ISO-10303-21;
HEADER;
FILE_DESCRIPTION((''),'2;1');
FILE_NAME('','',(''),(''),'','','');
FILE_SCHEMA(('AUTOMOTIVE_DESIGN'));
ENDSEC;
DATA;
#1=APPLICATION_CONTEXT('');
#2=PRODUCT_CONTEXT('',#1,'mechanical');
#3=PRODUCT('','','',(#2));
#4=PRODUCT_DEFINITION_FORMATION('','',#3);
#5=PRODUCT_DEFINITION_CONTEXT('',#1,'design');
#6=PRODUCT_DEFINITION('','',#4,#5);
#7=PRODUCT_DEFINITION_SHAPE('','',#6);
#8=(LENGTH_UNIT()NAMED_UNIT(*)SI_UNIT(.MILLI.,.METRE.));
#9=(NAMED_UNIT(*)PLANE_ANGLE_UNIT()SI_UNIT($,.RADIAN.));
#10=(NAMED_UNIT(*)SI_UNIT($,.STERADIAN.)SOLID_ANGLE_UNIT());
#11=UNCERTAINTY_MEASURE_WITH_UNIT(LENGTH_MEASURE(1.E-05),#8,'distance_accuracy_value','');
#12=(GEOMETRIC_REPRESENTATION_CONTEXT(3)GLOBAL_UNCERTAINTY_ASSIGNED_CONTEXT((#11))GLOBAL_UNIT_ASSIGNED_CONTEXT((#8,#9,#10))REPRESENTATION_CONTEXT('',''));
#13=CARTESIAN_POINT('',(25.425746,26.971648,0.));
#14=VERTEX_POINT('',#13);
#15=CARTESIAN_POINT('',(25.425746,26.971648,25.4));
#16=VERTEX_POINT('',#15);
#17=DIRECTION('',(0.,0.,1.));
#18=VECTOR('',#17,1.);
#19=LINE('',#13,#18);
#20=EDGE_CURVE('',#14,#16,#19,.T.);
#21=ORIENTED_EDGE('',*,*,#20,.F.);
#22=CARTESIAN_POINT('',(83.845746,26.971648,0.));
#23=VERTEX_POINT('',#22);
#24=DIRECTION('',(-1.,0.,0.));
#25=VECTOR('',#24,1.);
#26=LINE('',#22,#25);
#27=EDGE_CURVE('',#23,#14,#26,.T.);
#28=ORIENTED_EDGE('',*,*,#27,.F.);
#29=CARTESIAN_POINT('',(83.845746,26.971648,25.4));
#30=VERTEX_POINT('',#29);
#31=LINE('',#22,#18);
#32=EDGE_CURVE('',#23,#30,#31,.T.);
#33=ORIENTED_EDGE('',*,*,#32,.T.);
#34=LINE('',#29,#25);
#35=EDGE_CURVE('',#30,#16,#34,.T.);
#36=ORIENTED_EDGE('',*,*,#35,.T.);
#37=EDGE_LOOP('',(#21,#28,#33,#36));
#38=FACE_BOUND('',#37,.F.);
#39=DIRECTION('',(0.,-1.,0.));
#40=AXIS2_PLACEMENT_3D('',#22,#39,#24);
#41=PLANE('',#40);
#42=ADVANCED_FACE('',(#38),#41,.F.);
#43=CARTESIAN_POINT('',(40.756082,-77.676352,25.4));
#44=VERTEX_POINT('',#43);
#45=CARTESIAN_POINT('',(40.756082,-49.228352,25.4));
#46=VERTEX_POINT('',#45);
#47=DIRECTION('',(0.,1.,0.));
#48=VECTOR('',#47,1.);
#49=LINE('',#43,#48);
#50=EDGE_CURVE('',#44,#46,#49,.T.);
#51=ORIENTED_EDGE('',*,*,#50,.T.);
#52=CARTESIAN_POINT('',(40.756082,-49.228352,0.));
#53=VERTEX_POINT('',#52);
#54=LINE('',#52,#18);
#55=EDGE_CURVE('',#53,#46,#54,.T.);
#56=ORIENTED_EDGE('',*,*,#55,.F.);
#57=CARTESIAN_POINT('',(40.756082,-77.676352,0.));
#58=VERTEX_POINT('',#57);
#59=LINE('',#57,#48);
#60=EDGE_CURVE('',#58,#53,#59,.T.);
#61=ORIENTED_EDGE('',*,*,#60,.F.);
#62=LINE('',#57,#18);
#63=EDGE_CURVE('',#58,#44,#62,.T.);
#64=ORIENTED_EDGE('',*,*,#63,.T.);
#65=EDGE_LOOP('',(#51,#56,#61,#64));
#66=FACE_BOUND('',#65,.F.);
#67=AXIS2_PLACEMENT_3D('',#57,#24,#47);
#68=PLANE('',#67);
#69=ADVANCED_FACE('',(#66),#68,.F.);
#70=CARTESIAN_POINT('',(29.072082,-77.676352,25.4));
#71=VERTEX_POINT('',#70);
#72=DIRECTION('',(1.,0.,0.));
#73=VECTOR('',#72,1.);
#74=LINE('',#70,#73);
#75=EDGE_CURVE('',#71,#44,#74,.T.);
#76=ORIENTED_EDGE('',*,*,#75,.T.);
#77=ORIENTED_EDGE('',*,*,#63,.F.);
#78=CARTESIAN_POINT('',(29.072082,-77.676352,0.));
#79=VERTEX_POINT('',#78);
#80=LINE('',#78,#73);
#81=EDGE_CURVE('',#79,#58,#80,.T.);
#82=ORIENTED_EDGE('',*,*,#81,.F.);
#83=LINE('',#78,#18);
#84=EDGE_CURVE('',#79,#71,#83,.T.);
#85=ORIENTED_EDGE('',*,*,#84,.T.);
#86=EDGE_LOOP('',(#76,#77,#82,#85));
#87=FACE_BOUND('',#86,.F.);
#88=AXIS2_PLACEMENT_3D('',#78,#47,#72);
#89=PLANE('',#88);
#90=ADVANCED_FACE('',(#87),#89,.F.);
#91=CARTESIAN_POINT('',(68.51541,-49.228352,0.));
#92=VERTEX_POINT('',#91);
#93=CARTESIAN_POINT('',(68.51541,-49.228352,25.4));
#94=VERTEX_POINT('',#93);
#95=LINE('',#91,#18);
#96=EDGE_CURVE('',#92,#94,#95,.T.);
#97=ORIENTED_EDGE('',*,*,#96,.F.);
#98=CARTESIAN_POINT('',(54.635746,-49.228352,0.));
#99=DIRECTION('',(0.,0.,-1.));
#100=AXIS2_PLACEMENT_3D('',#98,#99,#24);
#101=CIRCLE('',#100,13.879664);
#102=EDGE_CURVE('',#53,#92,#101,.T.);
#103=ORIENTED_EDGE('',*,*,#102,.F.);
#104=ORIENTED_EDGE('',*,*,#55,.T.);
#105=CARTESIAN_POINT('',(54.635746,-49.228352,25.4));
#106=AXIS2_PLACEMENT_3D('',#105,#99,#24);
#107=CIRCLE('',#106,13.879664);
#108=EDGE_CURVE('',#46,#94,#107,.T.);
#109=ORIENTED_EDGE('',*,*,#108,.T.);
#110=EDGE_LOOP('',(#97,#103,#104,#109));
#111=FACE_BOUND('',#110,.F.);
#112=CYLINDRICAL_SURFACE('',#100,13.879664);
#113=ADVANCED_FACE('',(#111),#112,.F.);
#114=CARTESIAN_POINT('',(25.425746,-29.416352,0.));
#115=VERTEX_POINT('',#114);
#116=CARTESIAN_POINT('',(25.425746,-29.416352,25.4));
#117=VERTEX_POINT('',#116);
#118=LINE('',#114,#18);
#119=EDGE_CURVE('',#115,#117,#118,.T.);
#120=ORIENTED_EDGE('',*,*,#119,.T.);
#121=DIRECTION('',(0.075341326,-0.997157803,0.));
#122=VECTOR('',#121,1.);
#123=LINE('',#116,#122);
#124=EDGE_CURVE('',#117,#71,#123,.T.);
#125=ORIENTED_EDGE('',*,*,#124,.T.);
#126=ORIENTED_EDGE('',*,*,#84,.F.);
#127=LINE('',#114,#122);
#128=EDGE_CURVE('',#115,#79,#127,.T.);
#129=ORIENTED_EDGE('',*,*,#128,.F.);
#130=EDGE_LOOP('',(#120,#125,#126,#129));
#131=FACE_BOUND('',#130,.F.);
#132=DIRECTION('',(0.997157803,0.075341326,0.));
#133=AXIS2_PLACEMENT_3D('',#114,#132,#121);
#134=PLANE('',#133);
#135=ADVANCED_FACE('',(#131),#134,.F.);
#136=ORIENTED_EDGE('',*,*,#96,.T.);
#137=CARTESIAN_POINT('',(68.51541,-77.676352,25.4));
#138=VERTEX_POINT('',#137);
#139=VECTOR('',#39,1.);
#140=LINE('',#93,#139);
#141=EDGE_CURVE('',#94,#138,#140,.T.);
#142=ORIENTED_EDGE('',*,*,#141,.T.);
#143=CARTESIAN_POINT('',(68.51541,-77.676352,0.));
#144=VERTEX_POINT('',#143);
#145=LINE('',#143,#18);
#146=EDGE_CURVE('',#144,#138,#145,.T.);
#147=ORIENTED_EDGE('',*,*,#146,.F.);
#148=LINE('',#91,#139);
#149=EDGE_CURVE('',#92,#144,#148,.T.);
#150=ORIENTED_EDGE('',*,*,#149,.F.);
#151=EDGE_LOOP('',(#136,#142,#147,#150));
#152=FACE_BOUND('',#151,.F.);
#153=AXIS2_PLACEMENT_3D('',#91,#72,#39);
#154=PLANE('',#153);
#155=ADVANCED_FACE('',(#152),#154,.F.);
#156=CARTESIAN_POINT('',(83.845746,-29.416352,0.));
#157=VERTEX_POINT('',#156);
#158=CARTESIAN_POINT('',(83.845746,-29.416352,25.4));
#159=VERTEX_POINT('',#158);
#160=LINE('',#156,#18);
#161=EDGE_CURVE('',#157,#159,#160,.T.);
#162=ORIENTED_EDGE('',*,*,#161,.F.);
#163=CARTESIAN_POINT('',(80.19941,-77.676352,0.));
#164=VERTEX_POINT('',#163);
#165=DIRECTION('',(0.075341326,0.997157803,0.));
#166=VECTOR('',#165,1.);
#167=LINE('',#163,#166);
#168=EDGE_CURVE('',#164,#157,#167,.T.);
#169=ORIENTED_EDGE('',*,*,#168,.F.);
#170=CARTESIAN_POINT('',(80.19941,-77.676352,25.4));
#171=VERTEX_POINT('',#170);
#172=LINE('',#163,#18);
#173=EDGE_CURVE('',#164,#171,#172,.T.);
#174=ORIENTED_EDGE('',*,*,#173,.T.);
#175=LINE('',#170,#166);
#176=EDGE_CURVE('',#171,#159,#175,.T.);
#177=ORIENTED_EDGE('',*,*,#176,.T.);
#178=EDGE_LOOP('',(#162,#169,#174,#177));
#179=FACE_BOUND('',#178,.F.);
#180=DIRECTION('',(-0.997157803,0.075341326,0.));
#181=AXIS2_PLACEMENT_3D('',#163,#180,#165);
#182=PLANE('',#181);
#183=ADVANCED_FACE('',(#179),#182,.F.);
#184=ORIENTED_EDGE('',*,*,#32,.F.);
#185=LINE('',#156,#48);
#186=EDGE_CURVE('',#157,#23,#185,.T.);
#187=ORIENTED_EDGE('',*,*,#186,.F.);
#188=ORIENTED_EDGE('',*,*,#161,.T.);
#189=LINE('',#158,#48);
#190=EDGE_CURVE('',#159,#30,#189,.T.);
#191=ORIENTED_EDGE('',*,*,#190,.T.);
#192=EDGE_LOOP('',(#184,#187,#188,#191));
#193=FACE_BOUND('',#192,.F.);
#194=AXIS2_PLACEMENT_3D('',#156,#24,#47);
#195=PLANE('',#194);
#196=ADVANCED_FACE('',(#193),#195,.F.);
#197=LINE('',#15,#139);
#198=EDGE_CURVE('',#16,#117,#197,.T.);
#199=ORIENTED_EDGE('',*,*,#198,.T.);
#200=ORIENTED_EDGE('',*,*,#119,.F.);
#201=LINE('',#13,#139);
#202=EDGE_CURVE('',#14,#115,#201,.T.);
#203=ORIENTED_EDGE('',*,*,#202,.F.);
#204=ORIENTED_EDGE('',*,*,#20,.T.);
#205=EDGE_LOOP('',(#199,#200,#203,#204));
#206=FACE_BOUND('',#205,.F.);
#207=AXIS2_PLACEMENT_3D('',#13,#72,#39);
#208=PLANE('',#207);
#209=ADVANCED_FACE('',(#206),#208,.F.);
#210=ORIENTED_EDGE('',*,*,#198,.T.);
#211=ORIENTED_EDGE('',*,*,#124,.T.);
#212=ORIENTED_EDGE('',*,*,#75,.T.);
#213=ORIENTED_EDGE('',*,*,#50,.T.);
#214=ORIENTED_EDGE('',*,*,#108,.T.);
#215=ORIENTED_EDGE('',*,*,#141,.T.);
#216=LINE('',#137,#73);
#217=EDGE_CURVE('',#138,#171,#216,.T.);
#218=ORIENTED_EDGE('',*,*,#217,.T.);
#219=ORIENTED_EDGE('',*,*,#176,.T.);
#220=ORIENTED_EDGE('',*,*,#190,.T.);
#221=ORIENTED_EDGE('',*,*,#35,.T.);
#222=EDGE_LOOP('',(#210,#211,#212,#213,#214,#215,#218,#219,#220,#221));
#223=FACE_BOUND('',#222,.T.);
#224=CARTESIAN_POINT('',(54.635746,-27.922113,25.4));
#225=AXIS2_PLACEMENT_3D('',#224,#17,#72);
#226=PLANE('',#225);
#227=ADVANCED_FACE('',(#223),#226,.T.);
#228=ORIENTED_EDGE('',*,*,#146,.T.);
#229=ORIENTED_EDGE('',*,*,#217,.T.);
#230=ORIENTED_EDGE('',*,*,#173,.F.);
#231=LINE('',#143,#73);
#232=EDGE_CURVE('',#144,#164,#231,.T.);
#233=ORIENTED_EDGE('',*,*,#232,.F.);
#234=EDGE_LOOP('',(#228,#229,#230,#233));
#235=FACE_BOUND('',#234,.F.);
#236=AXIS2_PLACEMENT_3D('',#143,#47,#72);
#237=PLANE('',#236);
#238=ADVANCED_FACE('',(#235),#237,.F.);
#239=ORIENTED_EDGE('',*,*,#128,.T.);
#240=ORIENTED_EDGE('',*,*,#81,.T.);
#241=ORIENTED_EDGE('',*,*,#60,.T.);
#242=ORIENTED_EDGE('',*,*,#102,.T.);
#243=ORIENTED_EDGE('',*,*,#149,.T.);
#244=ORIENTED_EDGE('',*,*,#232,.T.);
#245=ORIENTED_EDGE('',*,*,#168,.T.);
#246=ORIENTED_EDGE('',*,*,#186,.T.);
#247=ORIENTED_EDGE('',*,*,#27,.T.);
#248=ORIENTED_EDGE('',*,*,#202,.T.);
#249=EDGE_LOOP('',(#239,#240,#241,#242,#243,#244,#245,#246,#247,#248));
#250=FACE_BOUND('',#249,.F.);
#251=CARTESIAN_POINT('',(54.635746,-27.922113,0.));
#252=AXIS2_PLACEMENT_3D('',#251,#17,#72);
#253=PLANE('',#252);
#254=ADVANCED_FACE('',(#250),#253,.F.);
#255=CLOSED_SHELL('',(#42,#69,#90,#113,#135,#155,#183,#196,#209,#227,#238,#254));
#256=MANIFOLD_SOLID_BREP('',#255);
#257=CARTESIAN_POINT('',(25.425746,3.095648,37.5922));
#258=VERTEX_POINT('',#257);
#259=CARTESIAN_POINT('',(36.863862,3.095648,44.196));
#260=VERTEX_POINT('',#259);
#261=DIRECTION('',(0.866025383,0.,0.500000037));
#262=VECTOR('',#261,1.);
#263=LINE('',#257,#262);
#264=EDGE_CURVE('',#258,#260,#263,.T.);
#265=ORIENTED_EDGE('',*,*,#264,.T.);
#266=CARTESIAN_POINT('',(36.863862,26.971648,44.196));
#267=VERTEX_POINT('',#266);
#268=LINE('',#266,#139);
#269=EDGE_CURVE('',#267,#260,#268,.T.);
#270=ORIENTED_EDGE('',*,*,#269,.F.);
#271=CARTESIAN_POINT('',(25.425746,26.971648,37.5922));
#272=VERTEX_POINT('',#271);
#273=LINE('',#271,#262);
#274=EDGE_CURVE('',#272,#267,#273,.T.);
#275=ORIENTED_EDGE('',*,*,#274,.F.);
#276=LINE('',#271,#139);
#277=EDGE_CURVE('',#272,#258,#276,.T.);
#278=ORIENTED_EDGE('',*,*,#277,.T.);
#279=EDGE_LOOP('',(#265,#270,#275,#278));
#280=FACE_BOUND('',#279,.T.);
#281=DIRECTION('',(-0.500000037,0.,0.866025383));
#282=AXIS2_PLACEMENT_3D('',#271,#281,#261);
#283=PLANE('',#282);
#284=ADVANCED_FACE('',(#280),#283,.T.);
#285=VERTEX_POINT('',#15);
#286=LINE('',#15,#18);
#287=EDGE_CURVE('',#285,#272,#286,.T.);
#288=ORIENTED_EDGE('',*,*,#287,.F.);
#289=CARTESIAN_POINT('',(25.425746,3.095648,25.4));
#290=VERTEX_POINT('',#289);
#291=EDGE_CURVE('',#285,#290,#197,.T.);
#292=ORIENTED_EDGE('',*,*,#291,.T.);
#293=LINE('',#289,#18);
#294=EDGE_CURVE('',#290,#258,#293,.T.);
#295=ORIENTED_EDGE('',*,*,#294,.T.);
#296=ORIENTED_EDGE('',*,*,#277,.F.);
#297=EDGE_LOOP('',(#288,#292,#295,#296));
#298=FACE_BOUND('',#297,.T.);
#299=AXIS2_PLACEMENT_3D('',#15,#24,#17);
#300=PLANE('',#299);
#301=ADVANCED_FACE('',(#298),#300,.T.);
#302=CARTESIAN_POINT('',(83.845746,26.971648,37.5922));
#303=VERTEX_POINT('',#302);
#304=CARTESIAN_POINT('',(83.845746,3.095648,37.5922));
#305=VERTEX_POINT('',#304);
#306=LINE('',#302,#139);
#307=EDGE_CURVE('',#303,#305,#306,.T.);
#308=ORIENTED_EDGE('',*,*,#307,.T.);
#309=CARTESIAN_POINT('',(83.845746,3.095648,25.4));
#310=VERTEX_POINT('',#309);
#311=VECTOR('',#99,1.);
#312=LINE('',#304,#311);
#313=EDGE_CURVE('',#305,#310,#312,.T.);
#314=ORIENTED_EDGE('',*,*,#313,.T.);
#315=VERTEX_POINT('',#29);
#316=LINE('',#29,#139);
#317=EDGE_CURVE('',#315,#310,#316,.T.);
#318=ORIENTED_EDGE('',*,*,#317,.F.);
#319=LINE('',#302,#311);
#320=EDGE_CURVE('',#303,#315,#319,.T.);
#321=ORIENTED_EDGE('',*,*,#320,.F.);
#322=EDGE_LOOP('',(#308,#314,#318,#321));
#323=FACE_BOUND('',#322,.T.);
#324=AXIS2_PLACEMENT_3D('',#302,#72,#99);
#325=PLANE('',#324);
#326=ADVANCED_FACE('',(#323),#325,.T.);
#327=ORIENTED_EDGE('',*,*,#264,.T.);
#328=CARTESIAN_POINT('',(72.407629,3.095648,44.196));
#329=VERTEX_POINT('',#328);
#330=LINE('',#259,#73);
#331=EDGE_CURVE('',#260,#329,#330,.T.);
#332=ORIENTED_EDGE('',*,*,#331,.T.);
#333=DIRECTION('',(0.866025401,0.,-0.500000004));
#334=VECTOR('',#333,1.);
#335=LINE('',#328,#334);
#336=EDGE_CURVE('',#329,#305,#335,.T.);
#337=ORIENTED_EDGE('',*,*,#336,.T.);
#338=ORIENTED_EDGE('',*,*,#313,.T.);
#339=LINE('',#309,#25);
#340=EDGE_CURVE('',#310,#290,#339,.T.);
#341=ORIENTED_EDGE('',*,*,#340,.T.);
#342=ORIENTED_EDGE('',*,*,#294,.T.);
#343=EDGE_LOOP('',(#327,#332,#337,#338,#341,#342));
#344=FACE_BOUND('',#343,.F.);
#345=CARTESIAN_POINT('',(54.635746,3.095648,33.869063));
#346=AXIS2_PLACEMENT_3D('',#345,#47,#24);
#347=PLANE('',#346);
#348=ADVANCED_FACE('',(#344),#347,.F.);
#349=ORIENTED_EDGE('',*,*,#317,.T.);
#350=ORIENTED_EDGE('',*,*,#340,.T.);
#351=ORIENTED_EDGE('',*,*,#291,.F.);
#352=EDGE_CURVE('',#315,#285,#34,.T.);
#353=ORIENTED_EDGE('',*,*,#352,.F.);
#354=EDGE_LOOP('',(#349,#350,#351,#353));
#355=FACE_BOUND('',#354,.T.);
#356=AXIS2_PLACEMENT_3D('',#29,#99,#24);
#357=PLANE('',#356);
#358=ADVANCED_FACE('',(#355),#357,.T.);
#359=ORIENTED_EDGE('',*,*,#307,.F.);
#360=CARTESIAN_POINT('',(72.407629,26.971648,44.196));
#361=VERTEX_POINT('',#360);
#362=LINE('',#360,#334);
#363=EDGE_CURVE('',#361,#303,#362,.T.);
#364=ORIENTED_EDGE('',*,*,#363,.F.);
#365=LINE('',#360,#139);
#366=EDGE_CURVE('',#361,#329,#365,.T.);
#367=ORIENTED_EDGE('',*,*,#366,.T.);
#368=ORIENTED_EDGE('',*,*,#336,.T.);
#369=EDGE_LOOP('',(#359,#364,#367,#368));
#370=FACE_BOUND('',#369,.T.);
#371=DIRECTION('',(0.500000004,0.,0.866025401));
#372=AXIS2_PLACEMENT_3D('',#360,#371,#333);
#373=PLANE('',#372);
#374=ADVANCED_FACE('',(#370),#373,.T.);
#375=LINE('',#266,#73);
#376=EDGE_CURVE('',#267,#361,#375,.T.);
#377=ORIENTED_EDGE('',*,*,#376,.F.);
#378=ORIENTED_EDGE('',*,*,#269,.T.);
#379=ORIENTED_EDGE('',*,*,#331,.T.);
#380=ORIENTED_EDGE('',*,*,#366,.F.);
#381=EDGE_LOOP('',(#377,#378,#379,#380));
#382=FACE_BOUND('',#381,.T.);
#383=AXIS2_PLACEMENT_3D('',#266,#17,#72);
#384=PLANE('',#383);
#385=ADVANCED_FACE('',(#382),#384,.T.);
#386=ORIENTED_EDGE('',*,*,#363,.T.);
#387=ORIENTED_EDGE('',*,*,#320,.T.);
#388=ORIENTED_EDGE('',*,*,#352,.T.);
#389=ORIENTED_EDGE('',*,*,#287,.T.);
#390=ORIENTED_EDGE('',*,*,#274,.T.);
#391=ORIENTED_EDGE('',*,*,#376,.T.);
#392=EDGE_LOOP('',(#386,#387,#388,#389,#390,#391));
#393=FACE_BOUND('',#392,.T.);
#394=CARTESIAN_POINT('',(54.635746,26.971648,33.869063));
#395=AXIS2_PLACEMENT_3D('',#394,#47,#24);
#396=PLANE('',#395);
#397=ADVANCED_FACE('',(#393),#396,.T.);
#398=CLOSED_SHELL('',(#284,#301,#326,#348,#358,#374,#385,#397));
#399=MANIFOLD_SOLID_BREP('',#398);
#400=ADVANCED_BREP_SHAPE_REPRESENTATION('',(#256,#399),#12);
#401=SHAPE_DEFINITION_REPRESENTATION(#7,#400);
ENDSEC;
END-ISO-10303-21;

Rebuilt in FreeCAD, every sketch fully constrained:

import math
import FreeCAD as App
import Part
import Sketcher
Q = App.Units.Quantity

doc = App.newDocument("Part")
body = doc.addObject("PartDesign::Body", "Body")

sketch1 = doc.addObject("Sketcher::SketchObject", "Sketch")
body.addObject(sketch1)
sketch1.AttachmentSupport = (doc.XY_Plane, [""])
sketch1.MapMode = "FlatFace"
sketch1.addGeometry(Part.LineSegment(App.Vector(83.845746, 26.971648, 0), App.Vector(25.425746, 26.971648, 0)), False)
sketch1.addGeometry(Part.LineSegment(App.Vector(25.425746, 26.971648, 0), App.Vector(25.425746, -29.416352, 0)), False)
sketch1.addGeometry(Part.LineSegment(App.Vector(25.425746, -29.416352, 0), App.Vector(29.072082, -77.676352, 0)), False)
sketch1.addGeometry(Part.LineSegment(App.Vector(29.072082, -77.676352, 0), App.Vector(40.756082, -77.676352, 0)), False)
sketch1.addGeometry(Part.LineSegment(App.Vector(40.756082, -77.676352, 0), App.Vector(40.756082, -49.228352, 0)), False)
sketch1.addGeometry(Part.ArcOfCircle(Part.Circle(App.Vector(54.635746, -49.228352, 0), App.Vector(0, 0, 1), 13.879664), math.radians(0), math.radians(180)), False)
sketch1.addGeometry(Part.LineSegment(App.Vector(68.51541, -49.228352, 0), App.Vector(68.51541, -77.676352, 0)), False)
sketch1.addGeometry(Part.LineSegment(App.Vector(68.51541, -77.676352, 0), App.Vector(80.19941, -77.676352, 0)), False)
sketch1.addGeometry(Part.LineSegment(App.Vector(80.19941, -77.676352, 0), App.Vector(83.845746, -29.416352, 0)), False)
sketch1.addGeometry(Part.LineSegment(App.Vector(83.845746, -29.416352, 0), App.Vector(83.845746, 26.971648, 0)), False)
sketch1.addConstraint(Sketcher.Constraint("Coincident", 0, 2, 1, 1))
sketch1.addConstraint(Sketcher.Constraint("Coincident", 1, 2, 2, 1))
sketch1.addConstraint(Sketcher.Constraint("Coincident", 2, 2, 3, 1))
sketch1.addConstraint(Sketcher.Constraint("Coincident", 3, 2, 4, 1))
sketch1.addConstraint(Sketcher.Constraint("Tangent", 4, 2, 5, 2))
sketch1.addConstraint(Sketcher.Constraint("Tangent", 5, 1, 6, 1))
sketch1.addConstraint(Sketcher.Constraint("Coincident", 6, 2, 7, 1))
sketch1.addConstraint(Sketcher.Constraint("Coincident", 7, 2, 8, 1))
sketch1.addConstraint(Sketcher.Constraint("Coincident", 8, 2, 9, 1))
sketch1.addConstraint(Sketcher.Constraint("Coincident", 9, 2, 0, 1))
sketch1.addConstraint(Sketcher.Constraint("Horizontal", 0))
sketch1.addConstraint(Sketcher.Constraint("Vertical", 1))
sketch1.addConstraint(Sketcher.Constraint("Horizontal", 3))
sketch1.addConstraint(Sketcher.Constraint("Vertical", 4))
sketch1.addConstraint(Sketcher.Constraint("Vertical", 6))
sketch1.addConstraint(Sketcher.Constraint("Horizontal", 7))
sketch1.addConstraint(Sketcher.Constraint("Vertical", 9))
sketch1.addConstraint(Sketcher.Constraint("Horizontal", 3, 2, 6, 2))
sketch1.addConstraint(Sketcher.Constraint("Horizontal", 1, 2, 8, 2))
sketch1.addConstraint(Sketcher.Constraint("Equal", 3, 7))
sketch1.addConstraint(Sketcher.Constraint("Equal", 2, 8))
sketch1.addConstraint(Sketcher.Constraint("DistanceX", 0, 2, 0, 1, Q("2.3 in")))
sketch1.addConstraint(Sketcher.Constraint("DistanceY", 5, 3, 0, 2, Q("3 in")))
sketch1.addConstraint(Sketcher.Constraint("DistanceX", 3, 1, 3, 2, Q("0.46 in")))
sketch1.addConstraint(Sketcher.Constraint("DistanceY", 1, 2, 1, 1, Q("2.22 in")))
sketch1.addConstraint(Sketcher.Constraint("DistanceY", 4, 1, 4, 2, Q("1.12 in")))
sketch1.addConstraint(Sketcher.Constraint("Radius", 5, Q("13.879664 mm")))
sketch1.addConstraint(Sketcher.Constraint("DistanceY", 1, 2, -1, 1, Q("29.416352 mm")))
sketch1.addConstraint(Sketcher.Constraint("DistanceX", -1, 1, 5, 1, Q("68.51541 mm")))
pad1 = doc.addObject("PartDesign::Pad", "Pad")
body.addObject(pad1)
pad1.Profile = sketch1
pad1.Length = Q("1 in")
body2 = doc.addObject("PartDesign::Body", "Body001")

sketch2 = doc.addObject("Sketcher::SketchObject", "Sketch001")
body2.addObject(sketch2)
sketch2.AttachmentSupport = (doc.getObject("XZ_Plane001"), [""])
sketch2.MapMode = "FlatFace"
sketch2.AttachmentOffset = App.Placement(App.Vector(0, 0, -26.971648), App.Rotation())
sketch2.addGeometry(Part.LineSegment(App.Vector(72.407629, 44.196, 0), App.Vector(83.845746, 37.5922, 0)), False)
sketch2.addGeometry(Part.LineSegment(App.Vector(83.845746, 37.5922, 0), App.Vector(83.845746, 25.4, 0)), False)
sketch2.addGeometry(Part.LineSegment(App.Vector(83.845746, 25.4, 0), App.Vector(25.425746, 25.4, 0)), False)
sketch2.addGeometry(Part.LineSegment(App.Vector(25.425746, 25.4, 0), App.Vector(25.425746, 37.5922, 0)), False)
sketch2.addGeometry(Part.LineSegment(App.Vector(25.425746, 37.5922, 0), App.Vector(36.863862, 44.196, 0)), False)
sketch2.addGeometry(Part.LineSegment(App.Vector(36.863862, 44.196, 0), App.Vector(72.407629, 44.196, 0)), False)
sketch2.addConstraint(Sketcher.Constraint("Coincident", 0, 2, 1, 1))
sketch2.addConstraint(Sketcher.Constraint("Coincident", 1, 2, 2, 1))
sketch2.addConstraint(Sketcher.Constraint("Coincident", 2, 2, 3, 1))
sketch2.addConstraint(Sketcher.Constraint("Coincident", 3, 2, 4, 1))
sketch2.addConstraint(Sketcher.Constraint("Coincident", 4, 2, 5, 1))
sketch2.addConstraint(Sketcher.Constraint("Coincident", 5, 2, 0, 1))
sketch2.addConstraint(Sketcher.Constraint("Vertical", 1))
sketch2.addConstraint(Sketcher.Constraint("Horizontal", 2))
sketch2.addConstraint(Sketcher.Constraint("Vertical", 3))
sketch2.addConstraint(Sketcher.Constraint("Horizontal", 5))
sketch2.addConstraint(Sketcher.Constraint("Horizontal", 0, 2, 3, 2))
sketch2.addConstraint(Sketcher.Constraint("Equal", 0, 4))
sketch2.addConstraint(Sketcher.Constraint("DistanceX", 2, 2, 2, 1, Q("2.3 in")))
sketch2.addConstraint(Sketcher.Constraint("DistanceY", -1, 1, 1, 2, Q("1 in")))
sketch2.addConstraint(Sketcher.Constraint("Angle", 0, Q("-30 deg")))
sketch2.addConstraint(Sketcher.Constraint("DistanceY", -1, 1, 4, 2, Q("1.74 in")))
sketch2.addConstraint(Sketcher.Constraint("DistanceY", 1, 2, 1, 1, Q("12.1922 mm")))
sketch2.addConstraint(Sketcher.Constraint("DistanceX", -1, 1, 4, 2, Q("36.863862 mm")))
pad2 = doc.addObject("PartDesign::Pad", "Pad001")
body2.addObject(pad2)
pad2.Profile = sketch2
pad2.Length = Q("0.94 in")

doc.recompute()
